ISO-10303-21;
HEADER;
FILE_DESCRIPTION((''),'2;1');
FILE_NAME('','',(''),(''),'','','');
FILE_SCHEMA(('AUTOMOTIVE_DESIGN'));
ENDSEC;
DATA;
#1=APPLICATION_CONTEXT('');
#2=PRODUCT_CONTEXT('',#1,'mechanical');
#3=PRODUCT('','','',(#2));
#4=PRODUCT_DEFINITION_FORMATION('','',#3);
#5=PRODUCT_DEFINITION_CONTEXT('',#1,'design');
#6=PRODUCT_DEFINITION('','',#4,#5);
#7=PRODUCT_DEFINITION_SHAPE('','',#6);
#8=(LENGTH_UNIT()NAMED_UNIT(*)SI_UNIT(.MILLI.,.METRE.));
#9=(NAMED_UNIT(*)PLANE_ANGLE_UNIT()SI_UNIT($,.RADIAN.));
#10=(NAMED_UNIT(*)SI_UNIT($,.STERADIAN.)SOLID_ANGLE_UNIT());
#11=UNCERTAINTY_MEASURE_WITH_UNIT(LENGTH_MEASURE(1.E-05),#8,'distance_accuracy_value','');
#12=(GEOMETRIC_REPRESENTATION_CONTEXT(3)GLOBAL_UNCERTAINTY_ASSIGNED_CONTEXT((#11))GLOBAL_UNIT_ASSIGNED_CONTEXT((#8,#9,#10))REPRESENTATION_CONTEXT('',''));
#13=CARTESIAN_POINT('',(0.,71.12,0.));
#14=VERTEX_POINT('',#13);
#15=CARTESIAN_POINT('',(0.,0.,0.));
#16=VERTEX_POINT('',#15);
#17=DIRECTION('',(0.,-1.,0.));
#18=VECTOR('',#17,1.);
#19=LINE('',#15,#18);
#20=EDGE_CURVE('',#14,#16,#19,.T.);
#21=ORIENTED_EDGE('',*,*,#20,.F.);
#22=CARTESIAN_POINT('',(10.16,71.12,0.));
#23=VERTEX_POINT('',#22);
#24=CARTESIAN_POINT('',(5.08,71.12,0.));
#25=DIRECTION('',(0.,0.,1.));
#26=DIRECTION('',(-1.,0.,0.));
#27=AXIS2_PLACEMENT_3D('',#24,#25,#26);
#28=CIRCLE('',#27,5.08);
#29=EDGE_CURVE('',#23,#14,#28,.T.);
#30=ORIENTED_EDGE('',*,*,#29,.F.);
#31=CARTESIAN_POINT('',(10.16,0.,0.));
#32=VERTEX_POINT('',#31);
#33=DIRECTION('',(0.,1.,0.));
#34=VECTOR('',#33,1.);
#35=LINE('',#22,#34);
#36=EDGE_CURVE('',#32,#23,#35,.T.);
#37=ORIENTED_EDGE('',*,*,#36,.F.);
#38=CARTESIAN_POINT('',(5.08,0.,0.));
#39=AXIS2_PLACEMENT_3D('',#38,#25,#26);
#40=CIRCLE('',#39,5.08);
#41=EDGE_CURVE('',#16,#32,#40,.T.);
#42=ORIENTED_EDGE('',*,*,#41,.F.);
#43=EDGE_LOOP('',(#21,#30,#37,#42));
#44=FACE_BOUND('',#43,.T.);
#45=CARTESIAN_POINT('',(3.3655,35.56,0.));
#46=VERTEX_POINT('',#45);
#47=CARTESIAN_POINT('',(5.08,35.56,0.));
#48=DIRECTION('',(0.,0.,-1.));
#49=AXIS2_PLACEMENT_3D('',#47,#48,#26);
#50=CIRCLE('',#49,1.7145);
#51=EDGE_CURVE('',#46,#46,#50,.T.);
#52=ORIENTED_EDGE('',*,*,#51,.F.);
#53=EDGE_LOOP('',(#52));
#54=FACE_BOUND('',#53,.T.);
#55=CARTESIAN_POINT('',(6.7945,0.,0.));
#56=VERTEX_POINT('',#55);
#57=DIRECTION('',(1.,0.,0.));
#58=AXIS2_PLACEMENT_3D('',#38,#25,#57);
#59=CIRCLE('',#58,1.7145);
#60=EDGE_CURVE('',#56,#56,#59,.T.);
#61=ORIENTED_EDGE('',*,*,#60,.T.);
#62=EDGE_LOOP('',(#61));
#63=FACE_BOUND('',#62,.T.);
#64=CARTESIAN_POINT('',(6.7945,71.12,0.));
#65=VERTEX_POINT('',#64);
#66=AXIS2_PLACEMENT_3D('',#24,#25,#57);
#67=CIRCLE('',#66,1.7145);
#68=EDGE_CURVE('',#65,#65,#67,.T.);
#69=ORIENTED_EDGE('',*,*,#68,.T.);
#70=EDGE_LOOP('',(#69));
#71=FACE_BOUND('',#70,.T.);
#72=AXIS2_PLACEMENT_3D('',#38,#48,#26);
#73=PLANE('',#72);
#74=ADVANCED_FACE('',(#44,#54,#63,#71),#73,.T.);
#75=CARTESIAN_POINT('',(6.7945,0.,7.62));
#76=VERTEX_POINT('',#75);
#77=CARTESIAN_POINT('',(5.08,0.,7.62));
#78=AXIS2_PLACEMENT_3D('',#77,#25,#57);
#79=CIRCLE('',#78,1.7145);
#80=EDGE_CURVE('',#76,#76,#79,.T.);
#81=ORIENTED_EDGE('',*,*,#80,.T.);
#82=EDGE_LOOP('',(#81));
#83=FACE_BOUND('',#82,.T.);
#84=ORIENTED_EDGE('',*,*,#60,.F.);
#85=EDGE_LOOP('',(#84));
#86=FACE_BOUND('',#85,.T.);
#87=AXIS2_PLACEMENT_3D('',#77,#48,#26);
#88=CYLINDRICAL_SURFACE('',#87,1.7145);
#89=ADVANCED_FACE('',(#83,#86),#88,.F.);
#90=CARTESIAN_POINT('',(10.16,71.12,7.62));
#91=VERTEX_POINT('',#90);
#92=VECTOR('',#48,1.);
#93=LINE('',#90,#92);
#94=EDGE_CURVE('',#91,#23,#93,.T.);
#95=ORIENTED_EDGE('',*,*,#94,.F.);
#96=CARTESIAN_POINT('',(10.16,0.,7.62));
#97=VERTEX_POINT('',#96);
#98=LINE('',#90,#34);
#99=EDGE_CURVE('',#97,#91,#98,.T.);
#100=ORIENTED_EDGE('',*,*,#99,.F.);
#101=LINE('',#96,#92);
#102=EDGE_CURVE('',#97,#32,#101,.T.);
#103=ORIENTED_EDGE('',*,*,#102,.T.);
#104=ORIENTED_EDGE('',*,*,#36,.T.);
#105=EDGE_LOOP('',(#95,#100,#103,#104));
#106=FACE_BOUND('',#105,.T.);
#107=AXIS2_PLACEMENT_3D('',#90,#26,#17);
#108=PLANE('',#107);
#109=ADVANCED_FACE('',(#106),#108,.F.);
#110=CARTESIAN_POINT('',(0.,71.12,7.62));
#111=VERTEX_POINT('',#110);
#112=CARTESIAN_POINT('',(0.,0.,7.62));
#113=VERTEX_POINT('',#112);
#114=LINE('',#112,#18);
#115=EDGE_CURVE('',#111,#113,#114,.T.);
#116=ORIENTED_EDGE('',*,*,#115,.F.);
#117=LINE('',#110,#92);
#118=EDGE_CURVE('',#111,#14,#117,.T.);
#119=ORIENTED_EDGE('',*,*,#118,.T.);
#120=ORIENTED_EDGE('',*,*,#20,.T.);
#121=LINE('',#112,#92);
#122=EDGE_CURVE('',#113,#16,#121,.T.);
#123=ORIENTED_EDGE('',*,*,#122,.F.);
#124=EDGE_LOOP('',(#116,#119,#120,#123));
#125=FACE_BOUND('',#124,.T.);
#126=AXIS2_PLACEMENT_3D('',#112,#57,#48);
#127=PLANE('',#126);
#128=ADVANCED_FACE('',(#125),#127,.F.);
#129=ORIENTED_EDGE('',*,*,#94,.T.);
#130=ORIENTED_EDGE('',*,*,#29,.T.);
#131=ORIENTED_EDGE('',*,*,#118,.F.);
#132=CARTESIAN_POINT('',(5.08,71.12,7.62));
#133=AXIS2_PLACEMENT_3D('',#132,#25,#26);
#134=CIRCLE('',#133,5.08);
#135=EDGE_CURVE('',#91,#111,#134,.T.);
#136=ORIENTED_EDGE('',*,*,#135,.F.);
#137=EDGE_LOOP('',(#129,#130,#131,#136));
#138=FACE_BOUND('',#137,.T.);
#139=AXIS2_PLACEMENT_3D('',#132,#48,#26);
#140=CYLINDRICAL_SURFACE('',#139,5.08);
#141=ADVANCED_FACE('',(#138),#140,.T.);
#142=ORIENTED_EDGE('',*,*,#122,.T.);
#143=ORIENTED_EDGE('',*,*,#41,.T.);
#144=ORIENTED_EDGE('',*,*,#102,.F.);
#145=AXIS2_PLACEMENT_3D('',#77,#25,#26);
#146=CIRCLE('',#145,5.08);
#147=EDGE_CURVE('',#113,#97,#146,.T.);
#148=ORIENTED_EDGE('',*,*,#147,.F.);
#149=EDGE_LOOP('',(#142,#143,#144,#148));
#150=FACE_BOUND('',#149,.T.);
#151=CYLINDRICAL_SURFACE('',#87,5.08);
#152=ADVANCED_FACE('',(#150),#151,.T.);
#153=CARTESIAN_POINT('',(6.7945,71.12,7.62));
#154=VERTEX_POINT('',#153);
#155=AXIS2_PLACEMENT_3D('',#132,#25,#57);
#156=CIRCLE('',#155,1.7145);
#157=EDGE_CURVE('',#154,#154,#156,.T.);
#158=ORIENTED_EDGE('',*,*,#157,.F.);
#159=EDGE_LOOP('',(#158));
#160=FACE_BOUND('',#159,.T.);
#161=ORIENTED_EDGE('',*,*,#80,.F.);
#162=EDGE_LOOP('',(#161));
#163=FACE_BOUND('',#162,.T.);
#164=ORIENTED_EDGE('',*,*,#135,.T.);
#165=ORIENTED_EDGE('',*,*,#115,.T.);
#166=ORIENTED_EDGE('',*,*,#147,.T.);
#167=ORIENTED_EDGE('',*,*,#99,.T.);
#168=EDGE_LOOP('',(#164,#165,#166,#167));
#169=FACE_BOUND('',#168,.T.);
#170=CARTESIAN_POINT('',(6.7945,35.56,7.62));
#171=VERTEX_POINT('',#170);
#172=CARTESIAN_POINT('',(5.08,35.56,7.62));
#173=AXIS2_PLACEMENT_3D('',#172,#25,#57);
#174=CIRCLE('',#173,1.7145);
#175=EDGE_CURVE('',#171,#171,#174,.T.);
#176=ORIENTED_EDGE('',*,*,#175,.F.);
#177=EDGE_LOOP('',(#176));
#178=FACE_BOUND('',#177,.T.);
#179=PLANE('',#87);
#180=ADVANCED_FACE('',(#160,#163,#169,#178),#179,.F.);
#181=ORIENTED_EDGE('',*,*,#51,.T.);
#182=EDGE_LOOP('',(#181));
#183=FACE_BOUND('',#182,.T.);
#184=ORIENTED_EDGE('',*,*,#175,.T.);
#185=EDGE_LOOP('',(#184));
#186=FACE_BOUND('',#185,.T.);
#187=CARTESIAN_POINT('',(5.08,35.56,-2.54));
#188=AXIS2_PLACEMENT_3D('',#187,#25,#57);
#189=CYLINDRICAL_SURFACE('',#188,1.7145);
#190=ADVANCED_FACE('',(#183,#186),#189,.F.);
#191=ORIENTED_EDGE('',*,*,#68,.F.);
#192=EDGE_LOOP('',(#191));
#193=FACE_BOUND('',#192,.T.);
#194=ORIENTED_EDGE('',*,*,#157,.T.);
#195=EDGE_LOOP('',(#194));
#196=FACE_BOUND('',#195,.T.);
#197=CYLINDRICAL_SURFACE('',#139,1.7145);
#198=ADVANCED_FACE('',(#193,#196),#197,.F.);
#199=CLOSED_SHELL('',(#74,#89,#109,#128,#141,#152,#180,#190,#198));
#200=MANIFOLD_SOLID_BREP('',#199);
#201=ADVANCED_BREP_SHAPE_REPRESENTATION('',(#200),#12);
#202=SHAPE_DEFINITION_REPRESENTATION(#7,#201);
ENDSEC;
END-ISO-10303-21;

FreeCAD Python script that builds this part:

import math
import FreeCAD as App
import Part
import Sketcher
from FreeCAD import Vector
Q = App.Units.Quantity

doc = App.newDocument("Part")
params = doc.addObject("Spreadsheet::Sheet", "Params")
for row, (alias, value) in enumerate([
    ("sketch1_radius", "0.2 in"),
    ("sketch1_diameter", "0.135 in"),
    ("sketch1_height", "2.8 in"),
    ("pad1_length", "0.3 in"),
    ("sketch2_diameter", "0.135 in"),
    ("pocket1_length", "0.4 in"),
], start=1):
    params.set(f"A{row}", alias)
    params.set(f"B{row}", "=" + value)
    params.setAlias(f"B{row}", alias)

body = doc.addObject("PartDesign::Body", "Body")

# Sketch on XY plane
sketch1 = body.newObject("Sketcher::SketchObject", "Sketch")
sketch1.AttachmentSupport = (doc.getObject("XY_Plane"), [""])
sketch1.MapMode = "FlatFace"
sketch1.addGeometry([
    Part.LineSegment(Vector(0, 71.1, 0), Vector(0, 0, 0)),  # 0
    Part.ArcOfCircle(Part.Circle(Vector(5.1, 0, 0), Vector(0, 0, 1), 5.1), math.radians(180), math.radians(360)),  # 1
    Part.LineSegment(Vector(10.2, 0, 0), Vector(10.2, 71.1, 0)),  # 2
    Part.ArcOfCircle(Part.Circle(Vector(5.1, 71.1, 0), Vector(0, 0, 1), 5.1), math.radians(0), math.radians(180)),  # 3
    Part.Circle(Vector(5.1, 0, 0), Vector(0, 0, 1), 1.7),  # 4
    Part.Circle(Vector(5.1, 71.1, 0), Vector(0, 0, 1), 1.7),  # 5
], False)
sketch1.addConstraint([
    Sketcher.Constraint("Tangent", 0, 2, 1, 1),
    Sketcher.Constraint("Tangent", 1, 2, 2, 1),
    Sketcher.Constraint("Tangent", 2, 2, 3, 1),
    Sketcher.Constraint("Tangent", 3, 2, 0, 1),
    Sketcher.Constraint("Vertical", 0),
    Sketcher.Constraint("Vertical", 2),
    Sketcher.Constraint("Coincident", 0, 2, -1, 1),
    Sketcher.Constraint("Coincident", 4, 3, 1, 3),
    Sketcher.Constraint("Coincident", 5, 3, 3, 3),
    Sketcher.Constraint("Equal", 4, 5),
    Sketcher.Constraint("Radius", 1, Q("0.2 in")),
    Sketcher.Constraint("Diameter", 4, Q("0.135 in")),
    Sketcher.Constraint("DistanceY", 0, 2, 0, 1, Q("2.8 in")),
])
sketch1.setExpression("Constraints[10]", "Params.sketch1_radius")
sketch1.setExpression("Constraints[11]", "Params.sketch1_diameter")
sketch1.setExpression("Constraints[12]", "Params.sketch1_height")
pad1 = body.newObject("PartDesign::Pad", "Pad")
pad1.Profile = sketch1
pad1.setExpression("Length", "Params.pad1_length")

# Sketch on XY plane
sketch2 = body.newObject("Sketcher::SketchObject", "Sketch001")
sketch2.AttachmentSupport = (doc.getObject("XY_Plane"), [""])
sketch2.MapMode = "FlatFace"
sketch2.AttachmentOffset = App.Placement(Vector(0, 0, 0.3 * 25.4), App.Rotation())
sketch2.addGeometry(Part.Circle(Vector(5.1, 35.6, 0), Vector(0, 0, 1), 1.7), False)
sketch2.addConstraint([
    Sketcher.Constraint("Diameter", 0, Q("0.135 in")),
    Sketcher.Constraint("DistanceX", -1, 1, 0, 3, Q("0.2 in")),
    Sketcher.Constraint("DistanceY", -1, 1, 0, 3, Q("1.4 in")),
])
sketch2.setExpression("Constraints[0]", "Params.sketch2_diameter")
pocket1 = body.newObject("PartDesign::Pocket", "Pocket")
pocket1.Profile = sketch2
pocket1.setExpression("Length", "Params.pocket1_length")

doc.recompute()
